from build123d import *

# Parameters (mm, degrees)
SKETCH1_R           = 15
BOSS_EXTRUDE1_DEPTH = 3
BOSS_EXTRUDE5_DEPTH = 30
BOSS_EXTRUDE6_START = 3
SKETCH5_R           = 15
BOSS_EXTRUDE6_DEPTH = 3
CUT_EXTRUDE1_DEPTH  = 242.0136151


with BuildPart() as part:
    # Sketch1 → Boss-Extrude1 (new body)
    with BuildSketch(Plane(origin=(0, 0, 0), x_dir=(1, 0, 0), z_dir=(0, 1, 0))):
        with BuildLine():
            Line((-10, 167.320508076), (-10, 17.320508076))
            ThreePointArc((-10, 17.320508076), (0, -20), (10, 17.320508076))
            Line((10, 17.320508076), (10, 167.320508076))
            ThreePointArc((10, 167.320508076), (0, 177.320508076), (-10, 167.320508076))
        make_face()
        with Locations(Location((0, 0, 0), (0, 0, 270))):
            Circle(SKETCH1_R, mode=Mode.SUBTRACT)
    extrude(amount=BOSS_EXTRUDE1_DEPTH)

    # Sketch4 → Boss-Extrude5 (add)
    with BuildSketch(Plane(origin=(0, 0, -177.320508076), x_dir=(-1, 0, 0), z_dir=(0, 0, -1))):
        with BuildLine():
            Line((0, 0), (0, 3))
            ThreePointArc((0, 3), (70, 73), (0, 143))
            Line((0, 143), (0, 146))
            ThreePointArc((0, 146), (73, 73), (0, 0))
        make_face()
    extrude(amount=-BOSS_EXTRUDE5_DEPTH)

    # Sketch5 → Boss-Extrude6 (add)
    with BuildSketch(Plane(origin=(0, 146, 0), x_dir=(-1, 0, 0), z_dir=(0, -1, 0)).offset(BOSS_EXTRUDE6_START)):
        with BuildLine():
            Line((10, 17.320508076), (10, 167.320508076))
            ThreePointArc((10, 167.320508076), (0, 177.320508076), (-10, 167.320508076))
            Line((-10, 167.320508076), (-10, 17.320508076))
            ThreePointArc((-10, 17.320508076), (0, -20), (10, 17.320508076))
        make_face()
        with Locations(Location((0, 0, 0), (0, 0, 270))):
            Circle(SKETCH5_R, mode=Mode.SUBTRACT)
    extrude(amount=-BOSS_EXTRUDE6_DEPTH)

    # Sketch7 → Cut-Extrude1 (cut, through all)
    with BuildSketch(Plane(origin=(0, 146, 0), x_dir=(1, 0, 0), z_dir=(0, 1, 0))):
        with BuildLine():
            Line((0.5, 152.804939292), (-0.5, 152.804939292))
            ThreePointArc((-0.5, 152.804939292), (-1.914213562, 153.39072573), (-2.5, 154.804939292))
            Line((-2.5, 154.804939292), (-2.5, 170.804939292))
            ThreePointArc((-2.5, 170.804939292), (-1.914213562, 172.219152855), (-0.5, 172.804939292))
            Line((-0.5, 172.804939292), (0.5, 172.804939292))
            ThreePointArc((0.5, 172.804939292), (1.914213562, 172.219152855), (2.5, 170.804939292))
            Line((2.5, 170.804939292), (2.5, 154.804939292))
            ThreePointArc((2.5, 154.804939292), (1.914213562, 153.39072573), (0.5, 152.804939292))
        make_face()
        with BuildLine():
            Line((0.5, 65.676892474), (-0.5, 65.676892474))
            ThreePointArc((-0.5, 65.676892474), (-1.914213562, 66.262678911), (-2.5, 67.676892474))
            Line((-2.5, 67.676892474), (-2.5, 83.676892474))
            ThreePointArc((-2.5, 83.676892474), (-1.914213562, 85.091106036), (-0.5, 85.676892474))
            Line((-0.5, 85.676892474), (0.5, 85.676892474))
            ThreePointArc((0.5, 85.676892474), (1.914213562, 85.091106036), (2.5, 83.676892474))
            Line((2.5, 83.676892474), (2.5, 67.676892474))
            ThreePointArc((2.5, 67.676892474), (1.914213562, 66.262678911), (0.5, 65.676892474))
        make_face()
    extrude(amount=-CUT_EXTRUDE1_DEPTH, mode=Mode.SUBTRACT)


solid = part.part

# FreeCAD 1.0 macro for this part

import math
import FreeCAD as App
import Part
import Sketcher
Q = App.Units.Quantity

doc = App.newDocument("Part")
params = doc.addObject("Spreadsheet::Sheet", "Params")
for row, (alias, value) in enumerate([
    ("sketch1_diameter", "30 mm"),
    ("sketch1_radius", "20 mm"),
    ("sketch1_radius2", "10 mm"),
    ("sketch1_height", "150 mm"),
    ("pad1_length", "3 mm"),
    ("sketch2_radius", "73 mm"),
    ("sketch2_radius2", "70 mm"),
    ("pad2_length", "30 mm"),
    ("sketch3_diameter", "30 mm"),
    ("sketch3_radius", "10 mm"),
    ("sketch3_radius2", "20 mm"),
    ("sketch3_height", "150 mm"),
    ("pad3_length", "3 mm"),
    ("sketch4_radius", "2 mm"),
    ("sketch4_width", "1 mm"),
    ("sketch4_height", "16 mm"),
], start=1):
    params.set(f"A{row}", alias)
    params.set(f"B{row}", "=" + value)
    params.setAlias(f"B{row}", alias)

body = doc.addObject("PartDesign::Body", "Body")

# Sketch on XZ plane
sketch1 = body.newObject("Sketcher::SketchObject", "Sketch")
sketch1.AttachmentSupport = (doc.getObject("XZ_Plane"), [""])
sketch1.MapMode = "FlatFace"
sketch1.addGeometry([
    Part.LineSegment(App.Vector(-10, -167, 0), App.Vector(-10, -17, 0)),  # 0
    Part.ArcOfCircle(Part.Circle(App.Vector(0, 0, 0), App.Vector(0, 0, 1), 20), math.radians(-60), math.radians(240)),  # 1
    Part.LineSegment(App.Vector(10, -17, 0), App.Vector(10, -167, 0)),  # 2
    Part.ArcOfCircle(Part.Circle(App.Vector(0, -167, 0), App.Vector(0, 0, 1), 10), math.radians(180), math.radians(360)),  # 3
    Part.Circle(App.Vector(0, 0, 0), App.Vector(0, 0, 1), 15),  # 4
], False)
sketch1.addConstraint([
    Sketcher.Constraint("Coincident", 0, 2, 1, 2),
    Sketcher.Constraint("Coincident", 1, 1, 2, 1),
    Sketcher.Constraint("Tangent", 2, 2, 3, 2),
    Sketcher.Constraint("Tangent", 3, 1, 0, 1),
    Sketcher.Constraint("Vertical", 0),
    Sketcher.Constraint("Vertical", 2),
    Sketcher.Constraint("Coincident", 1, 3, -1, 1),
    Sketcher.Constraint("Coincident", 4, 3, -1, 1),
    Sketcher.Constraint("PointOnObject", 3, 3, -2),
    Sketcher.Constraint("Diameter", 4, Q("30 mm")),
    Sketcher.Constraint("Radius", 1, Q("20 mm")),
    Sketcher.Constraint("Radius", 3, Q("10 mm")),
    Sketcher.Constraint("DistanceY", 0, 1, 0, 2, Q("150 mm")),
])
sketch1.setExpression("Constraints[9]", "Params.sketch1_diameter")
sketch1.setExpression("Constraints[10]", "Params.sketch1_radius")
sketch1.setExpression("Constraints[11]", "Params.sketch1_radius2")
sketch1.setExpression("Constraints[12]", "Params.sketch1_height")
pad1 = body.newObject("PartDesign::Pad", "Pad")
pad1.Profile = sketch1
pad1.setExpression("Length", "Params.pad1_length")
pad1.Reversed = True

# Sketch on XY plane
sketch2 = body.newObject("Sketcher::SketchObject", "Sketch001")
sketch2.AttachmentSupport = (doc.getObject("XY_Plane"), [""])
sketch2.MapMode = "FlatFace"
sketch2.AttachmentOffset = App.Placement(App.Vector(0, 0, -177.320508), App.Rotation())
sketch2.addGeometry([
    Part.LineSegment(App.Vector(0, 3, 0), App.Vector(0, 0, 0)),
    Part.ArcOfCircle(Part.Circle(App.Vector(0, 73, 0), App.Vector(0, 0, 1), 73), math.radians(90), math.radians(270)),
    Part.LineSegment(App.Vector(0, 146, 0), App.Vector(0, 143, 0)),
    Part.ArcOfCircle(Part.Circle(App.Vector(0, 73, 0), App.Vector(0, 0, 1), 70), math.radians(90), math.radians(270)),
], False)
sketch2.addConstraint([
    Sketcher.Constraint("Coincident", 0, 2, 1, 2),
    Sketcher.Constraint("Coincident", 1, 1, 2, 1),
    Sketcher.Constraint("Coincident", 2, 2, 3, 1),
    Sketcher.Constraint("Coincident", 3, 2, 0, 1),
    Sketcher.Constraint("Vertical", 0),
    Sketcher.Constraint("Vertical", 2),
    Sketcher.Constraint("Coincident", 0, 2, -1, 1),
    Sketcher.Constraint("Coincident", 3, 3, 1, 3),
    Sketcher.Constraint("PointOnObject", 1, 3, -2),
    Sketcher.Constraint("PointOnObject", 1, 1, -2),
    Sketcher.Constraint("Radius", 1, Q("73 mm")),
    Sketcher.Constraint("Radius", 3, Q("70 mm")),
])
sketch2.setExpression("Constraints[10]", "Params.sketch2_radius")
sketch2.setExpression("Constraints[11]", "Params.sketch2_radius2")
pad2 = body.newObject("PartDesign::Pad", "Pad001")
pad2.Profile = sketch2
pad2.setExpression("Length", "Params.pad2_length")

# Sketch on XZ plane
sketch3 = body.newObject("Sketcher::SketchObject", "Sketch002")
sketch3.AttachmentSupport = (doc.getObject("XZ_Plane"), [""])
sketch3.MapMode = "FlatFace"
sketch3.AttachmentOffset = App.Placement(App.Vector(0, 0, -143), App.Rotation())
sketch3.addGeometry([
    Part.LineSegment(App.Vector(-10, -17, 0), App.Vector(-10, -167, 0)),  # 0
    Part.ArcOfCircle(Part.Circle(App.Vector(0, -167, 0), App.Vector(0, 0, 1), 10), math.radians(180), math.radians(360)),  # 1
    Part.LineSegment(App.Vector(10, -167, 0), App.Vector(10, -17, 0)),  # 2
    Part.ArcOfCircle(Part.Circle(App.Vector(0, 0, 0), App.Vector(0, 0, 1), 20), math.radians(-60), math.radians(240)),  # 3
    Part.Circle(App.Vector(0, 0, 0), App.Vector(0, 0, 1), 15),  # 4
], False)
sketch3.addConstraint([
    Sketcher.Constraint("Tangent", 0, 2, 1, 1),
    Sketcher.Constraint("Tangent", 1, 2, 2, 1),
    Sketcher.Constraint("Coincident", 2, 2, 3, 1),
    Sketcher.Constraint("Coincident", 3, 2, 0, 1),
    Sketcher.Constraint("Vertical", 0),
    Sketcher.Constraint("Vertical", 2),
    Sketcher.Constraint("Coincident", 3, 3, -1, 1),
    Sketcher.Constraint("Coincident", 4, 3, -1, 1),
    Sketcher.Constraint("PointOnObject", 1, 3, -2),
    Sketcher.Constraint("Diameter", 4, Q("30 mm")),
    Sketcher.Constraint("Radius", 1, Q("10 mm")),
    Sketcher.Constraint("Radius", 3, Q("20 mm")),
    Sketcher.Constraint("DistanceY", 0, 2, 0, 1, Q("150 mm")),
])
sketch3.setExpression("Constraints[9]", "Params.sketch3_diameter")
sketch3.setExpression("Constraints[10]", "Params.sketch3_radius")
sketch3.setExpression("Constraints[11]", "Params.sketch3_radius2")
sketch3.setExpression("Constraints[12]", "Params.sketch3_height")
pad3 = body.newObject("PartDesign::Pad", "Pad002")
pad3.Profile = sketch3
pad3.setExpression("Length", "Params.pad3_length")
pad3.Reversed = True

# Sketch on XZ plane
sketch4 = body.newObject("Sketcher::SketchObject", "Sketch003")
sketch4.AttachmentSupport = (doc.getObject("XZ_Plane"), [""])
sketch4.MapMode = "FlatFace"
sketch4.AttachmentOffset = App.Placement(App.Vector(0, 0, -146), App.Rotation())
sketch4.addGeometry([
    Part.LineSegment(App.Vector(-0.5, -152.8, 0), App.Vector(0.5, -152.8, 0)),  # 0
    Part.ArcOfCircle(Part.Circle(App.Vector(0.5, -154.8, 0), App.Vector(0, 0, 1), 2), math.radians(0), math.radians(90)),  # 1
    Part.LineSegment(App.Vector(2.5, -154.8, 0), App.Vector(2.5, -170.8, 0)),  # 2
    Part.ArcOfCircle(Part.Circle(App.Vector(0.5, -170.8, 0), App.Vector(0, 0, 1), 2), math.radians(-90), math.radians(0)),  # 3
    Part.LineSegment(App.Vector(0.5, -172.8, 0), App.Vector(-0.5, -172.8, 0)),  # 4
    Part.ArcOfCircle(Part.Circle(App.Vector(-0.5, -170.8, 0), App.Vector(0, 0, 1), 2), math.radians(180), math.radians(270)),  # 5
    Part.LineSegment(App.Vector(-2.5, -170.8, 0), App.Vector(-2.5, -154.8, 0)),  # 6
    Part.ArcOfCircle(Part.Circle(App.Vector(-0.5, -154.8, 0), App.Vector(0, 0, 1), 2), math.radians(90), math.radians(180)),  # 7
    Part.LineSegment(App.Vector(-0.5, -65.7, 0), App.Vector(0.5, -65.7, 0)),  # 8
    Part.ArcOfCircle(Part.Circle(App.Vector(0.5, -67.7, 0), App.Vector(0, 0, 1), 2), math.radians(0), math.radians(90)),  # 9
    Part.LineSegment(App.Vector(2.5, -67.7, 0), App.Vector(2.5, -83.7, 0)),  # 10
    Part.ArcOfCircle(Part.Circle(App.Vector(0.5, -83.7, 0), App.Vector(0, 0, 1), 2), math.radians(-90), math.radians(0)),  # 11
    Part.LineSegment(App.Vector(0.5, -85.7, 0), App.Vector(-0.5, -85.7, 0)),  # 12
    Part.ArcOfCircle(Part.Circle(App.Vector(-0.5, -83.7, 0), App.Vector(0, 0, 1), 2), math.radians(-180), math.radians(-90)),  # 13
    Part.LineSegment(App.Vector(-2.5, -83.7, 0), App.Vector(-2.5, -67.7, 0)),  # 14
    Part.ArcOfCircle(Part.Circle(App.Vector(-0.5, -67.7, 0), App.Vector(0, 0, 1), 2), math.radians(90), math.radians(180)),  # 15
], False)
sketch4.addConstraint([
    Sketcher.Constraint("Tangent", 0, 2, 1, 2),
    Sketcher.Constraint("Tangent", 1, 1, 2, 1),
    Sketcher.Constraint("Tangent", 2, 2, 3, 2),
    Sketcher.Constraint("Tangent", 3, 1, 4, 1),
    Sketcher.Constraint("Tangent", 4, 2, 5, 2),
    Sketcher.Constraint("Tangent", 5, 1, 6, 1),
    Sketcher.Constraint("Tangent", 6, 2, 7, 2),
    Sketcher.Constraint("Tangent", 7, 1, 0, 1),
    Sketcher.Constraint("Tangent", 8, 2, 9, 2),
    Sketcher.Constraint("Tangent", 9, 1, 10, 1),
    Sketcher.Constraint("Tangent", 10, 2, 11, 2),
    Sketcher.Constraint("Tangent", 11, 1, 12, 1),
    Sketcher.Constraint("Tangent", 12, 2, 13, 2),
    Sketcher.Constraint("Tangent", 13, 1, 14, 1),
    Sketcher.Constraint("Tangent", 14, 2, 15, 2),
    Sketcher.Constraint("Tangent", 15, 1, 8, 1),
    Sketcher.Constraint("Horizontal", 0),
    Sketcher.Constraint("Vertical", 2),
    Sketcher.Constraint("Horizontal", 4),
    Sketcher.Constraint("Vertical", 6),
    Sketcher.Constraint("Horizontal", 8),
    Sketcher.Constraint("Vertical", 10),
    Sketcher.Constraint("Horizontal", 12),
    Sketcher.Constraint("Vertical", 14),
    Sketcher.Constraint("Equal", 1, 3),
    Sketcher.Constraint("Equal", 3, 5),
    Sketcher.Constraint("Equal", 5, 7),
    Sketcher.Constraint("Equal", 7, 9),
    Sketcher.Constraint("Equal", 9, 11),
    Sketcher.Constraint("Equal", 11, 13),
    Sketcher.Constraint("Equal", 13, 15),
    Sketcher.Constraint("Vertical", 3, 3, 9, 3),
    Sketcher.Constraint("Vertical", 7, 3, 13, 3),
    Sketcher.Constraint("Equal", 6, 10),
    Sketcher.Constraint("Radius", 1, Q("2 mm")),
    Sketcher.Constraint("DistanceX", 0, 1, 0, 2, Q("1 mm")),
    Sketcher.Constraint("DistanceY", 2, 2, 2, 1, Q("16 mm")),
    Sketcher.Constraint("DistanceX", -1, 1, 1, 3, Q("0.5 mm")),
    Sketcher.Constraint("DistanceY", 1, 3, -1, 1, Q("154.804939 mm")),
    Sketcher.Constraint("DistanceY", 9, 3, -1, 1, Q("67.676892 mm")),
])
sketch4.setExpression("Constraints[34]", "Params.sketch4_radius")
sketch4.setExpression("Constraints[35]", "Params.sketch4_width")
sketch4.setExpression("Constraints[36]", "Params.sketch4_height")
pocket1 = body.newObject("PartDesign::Pocket", "Pocket")
pocket1.Profile = sketch4
pocket1.Type = "ThroughAll"
pocket1.Reversed = True

doc.recompute()
